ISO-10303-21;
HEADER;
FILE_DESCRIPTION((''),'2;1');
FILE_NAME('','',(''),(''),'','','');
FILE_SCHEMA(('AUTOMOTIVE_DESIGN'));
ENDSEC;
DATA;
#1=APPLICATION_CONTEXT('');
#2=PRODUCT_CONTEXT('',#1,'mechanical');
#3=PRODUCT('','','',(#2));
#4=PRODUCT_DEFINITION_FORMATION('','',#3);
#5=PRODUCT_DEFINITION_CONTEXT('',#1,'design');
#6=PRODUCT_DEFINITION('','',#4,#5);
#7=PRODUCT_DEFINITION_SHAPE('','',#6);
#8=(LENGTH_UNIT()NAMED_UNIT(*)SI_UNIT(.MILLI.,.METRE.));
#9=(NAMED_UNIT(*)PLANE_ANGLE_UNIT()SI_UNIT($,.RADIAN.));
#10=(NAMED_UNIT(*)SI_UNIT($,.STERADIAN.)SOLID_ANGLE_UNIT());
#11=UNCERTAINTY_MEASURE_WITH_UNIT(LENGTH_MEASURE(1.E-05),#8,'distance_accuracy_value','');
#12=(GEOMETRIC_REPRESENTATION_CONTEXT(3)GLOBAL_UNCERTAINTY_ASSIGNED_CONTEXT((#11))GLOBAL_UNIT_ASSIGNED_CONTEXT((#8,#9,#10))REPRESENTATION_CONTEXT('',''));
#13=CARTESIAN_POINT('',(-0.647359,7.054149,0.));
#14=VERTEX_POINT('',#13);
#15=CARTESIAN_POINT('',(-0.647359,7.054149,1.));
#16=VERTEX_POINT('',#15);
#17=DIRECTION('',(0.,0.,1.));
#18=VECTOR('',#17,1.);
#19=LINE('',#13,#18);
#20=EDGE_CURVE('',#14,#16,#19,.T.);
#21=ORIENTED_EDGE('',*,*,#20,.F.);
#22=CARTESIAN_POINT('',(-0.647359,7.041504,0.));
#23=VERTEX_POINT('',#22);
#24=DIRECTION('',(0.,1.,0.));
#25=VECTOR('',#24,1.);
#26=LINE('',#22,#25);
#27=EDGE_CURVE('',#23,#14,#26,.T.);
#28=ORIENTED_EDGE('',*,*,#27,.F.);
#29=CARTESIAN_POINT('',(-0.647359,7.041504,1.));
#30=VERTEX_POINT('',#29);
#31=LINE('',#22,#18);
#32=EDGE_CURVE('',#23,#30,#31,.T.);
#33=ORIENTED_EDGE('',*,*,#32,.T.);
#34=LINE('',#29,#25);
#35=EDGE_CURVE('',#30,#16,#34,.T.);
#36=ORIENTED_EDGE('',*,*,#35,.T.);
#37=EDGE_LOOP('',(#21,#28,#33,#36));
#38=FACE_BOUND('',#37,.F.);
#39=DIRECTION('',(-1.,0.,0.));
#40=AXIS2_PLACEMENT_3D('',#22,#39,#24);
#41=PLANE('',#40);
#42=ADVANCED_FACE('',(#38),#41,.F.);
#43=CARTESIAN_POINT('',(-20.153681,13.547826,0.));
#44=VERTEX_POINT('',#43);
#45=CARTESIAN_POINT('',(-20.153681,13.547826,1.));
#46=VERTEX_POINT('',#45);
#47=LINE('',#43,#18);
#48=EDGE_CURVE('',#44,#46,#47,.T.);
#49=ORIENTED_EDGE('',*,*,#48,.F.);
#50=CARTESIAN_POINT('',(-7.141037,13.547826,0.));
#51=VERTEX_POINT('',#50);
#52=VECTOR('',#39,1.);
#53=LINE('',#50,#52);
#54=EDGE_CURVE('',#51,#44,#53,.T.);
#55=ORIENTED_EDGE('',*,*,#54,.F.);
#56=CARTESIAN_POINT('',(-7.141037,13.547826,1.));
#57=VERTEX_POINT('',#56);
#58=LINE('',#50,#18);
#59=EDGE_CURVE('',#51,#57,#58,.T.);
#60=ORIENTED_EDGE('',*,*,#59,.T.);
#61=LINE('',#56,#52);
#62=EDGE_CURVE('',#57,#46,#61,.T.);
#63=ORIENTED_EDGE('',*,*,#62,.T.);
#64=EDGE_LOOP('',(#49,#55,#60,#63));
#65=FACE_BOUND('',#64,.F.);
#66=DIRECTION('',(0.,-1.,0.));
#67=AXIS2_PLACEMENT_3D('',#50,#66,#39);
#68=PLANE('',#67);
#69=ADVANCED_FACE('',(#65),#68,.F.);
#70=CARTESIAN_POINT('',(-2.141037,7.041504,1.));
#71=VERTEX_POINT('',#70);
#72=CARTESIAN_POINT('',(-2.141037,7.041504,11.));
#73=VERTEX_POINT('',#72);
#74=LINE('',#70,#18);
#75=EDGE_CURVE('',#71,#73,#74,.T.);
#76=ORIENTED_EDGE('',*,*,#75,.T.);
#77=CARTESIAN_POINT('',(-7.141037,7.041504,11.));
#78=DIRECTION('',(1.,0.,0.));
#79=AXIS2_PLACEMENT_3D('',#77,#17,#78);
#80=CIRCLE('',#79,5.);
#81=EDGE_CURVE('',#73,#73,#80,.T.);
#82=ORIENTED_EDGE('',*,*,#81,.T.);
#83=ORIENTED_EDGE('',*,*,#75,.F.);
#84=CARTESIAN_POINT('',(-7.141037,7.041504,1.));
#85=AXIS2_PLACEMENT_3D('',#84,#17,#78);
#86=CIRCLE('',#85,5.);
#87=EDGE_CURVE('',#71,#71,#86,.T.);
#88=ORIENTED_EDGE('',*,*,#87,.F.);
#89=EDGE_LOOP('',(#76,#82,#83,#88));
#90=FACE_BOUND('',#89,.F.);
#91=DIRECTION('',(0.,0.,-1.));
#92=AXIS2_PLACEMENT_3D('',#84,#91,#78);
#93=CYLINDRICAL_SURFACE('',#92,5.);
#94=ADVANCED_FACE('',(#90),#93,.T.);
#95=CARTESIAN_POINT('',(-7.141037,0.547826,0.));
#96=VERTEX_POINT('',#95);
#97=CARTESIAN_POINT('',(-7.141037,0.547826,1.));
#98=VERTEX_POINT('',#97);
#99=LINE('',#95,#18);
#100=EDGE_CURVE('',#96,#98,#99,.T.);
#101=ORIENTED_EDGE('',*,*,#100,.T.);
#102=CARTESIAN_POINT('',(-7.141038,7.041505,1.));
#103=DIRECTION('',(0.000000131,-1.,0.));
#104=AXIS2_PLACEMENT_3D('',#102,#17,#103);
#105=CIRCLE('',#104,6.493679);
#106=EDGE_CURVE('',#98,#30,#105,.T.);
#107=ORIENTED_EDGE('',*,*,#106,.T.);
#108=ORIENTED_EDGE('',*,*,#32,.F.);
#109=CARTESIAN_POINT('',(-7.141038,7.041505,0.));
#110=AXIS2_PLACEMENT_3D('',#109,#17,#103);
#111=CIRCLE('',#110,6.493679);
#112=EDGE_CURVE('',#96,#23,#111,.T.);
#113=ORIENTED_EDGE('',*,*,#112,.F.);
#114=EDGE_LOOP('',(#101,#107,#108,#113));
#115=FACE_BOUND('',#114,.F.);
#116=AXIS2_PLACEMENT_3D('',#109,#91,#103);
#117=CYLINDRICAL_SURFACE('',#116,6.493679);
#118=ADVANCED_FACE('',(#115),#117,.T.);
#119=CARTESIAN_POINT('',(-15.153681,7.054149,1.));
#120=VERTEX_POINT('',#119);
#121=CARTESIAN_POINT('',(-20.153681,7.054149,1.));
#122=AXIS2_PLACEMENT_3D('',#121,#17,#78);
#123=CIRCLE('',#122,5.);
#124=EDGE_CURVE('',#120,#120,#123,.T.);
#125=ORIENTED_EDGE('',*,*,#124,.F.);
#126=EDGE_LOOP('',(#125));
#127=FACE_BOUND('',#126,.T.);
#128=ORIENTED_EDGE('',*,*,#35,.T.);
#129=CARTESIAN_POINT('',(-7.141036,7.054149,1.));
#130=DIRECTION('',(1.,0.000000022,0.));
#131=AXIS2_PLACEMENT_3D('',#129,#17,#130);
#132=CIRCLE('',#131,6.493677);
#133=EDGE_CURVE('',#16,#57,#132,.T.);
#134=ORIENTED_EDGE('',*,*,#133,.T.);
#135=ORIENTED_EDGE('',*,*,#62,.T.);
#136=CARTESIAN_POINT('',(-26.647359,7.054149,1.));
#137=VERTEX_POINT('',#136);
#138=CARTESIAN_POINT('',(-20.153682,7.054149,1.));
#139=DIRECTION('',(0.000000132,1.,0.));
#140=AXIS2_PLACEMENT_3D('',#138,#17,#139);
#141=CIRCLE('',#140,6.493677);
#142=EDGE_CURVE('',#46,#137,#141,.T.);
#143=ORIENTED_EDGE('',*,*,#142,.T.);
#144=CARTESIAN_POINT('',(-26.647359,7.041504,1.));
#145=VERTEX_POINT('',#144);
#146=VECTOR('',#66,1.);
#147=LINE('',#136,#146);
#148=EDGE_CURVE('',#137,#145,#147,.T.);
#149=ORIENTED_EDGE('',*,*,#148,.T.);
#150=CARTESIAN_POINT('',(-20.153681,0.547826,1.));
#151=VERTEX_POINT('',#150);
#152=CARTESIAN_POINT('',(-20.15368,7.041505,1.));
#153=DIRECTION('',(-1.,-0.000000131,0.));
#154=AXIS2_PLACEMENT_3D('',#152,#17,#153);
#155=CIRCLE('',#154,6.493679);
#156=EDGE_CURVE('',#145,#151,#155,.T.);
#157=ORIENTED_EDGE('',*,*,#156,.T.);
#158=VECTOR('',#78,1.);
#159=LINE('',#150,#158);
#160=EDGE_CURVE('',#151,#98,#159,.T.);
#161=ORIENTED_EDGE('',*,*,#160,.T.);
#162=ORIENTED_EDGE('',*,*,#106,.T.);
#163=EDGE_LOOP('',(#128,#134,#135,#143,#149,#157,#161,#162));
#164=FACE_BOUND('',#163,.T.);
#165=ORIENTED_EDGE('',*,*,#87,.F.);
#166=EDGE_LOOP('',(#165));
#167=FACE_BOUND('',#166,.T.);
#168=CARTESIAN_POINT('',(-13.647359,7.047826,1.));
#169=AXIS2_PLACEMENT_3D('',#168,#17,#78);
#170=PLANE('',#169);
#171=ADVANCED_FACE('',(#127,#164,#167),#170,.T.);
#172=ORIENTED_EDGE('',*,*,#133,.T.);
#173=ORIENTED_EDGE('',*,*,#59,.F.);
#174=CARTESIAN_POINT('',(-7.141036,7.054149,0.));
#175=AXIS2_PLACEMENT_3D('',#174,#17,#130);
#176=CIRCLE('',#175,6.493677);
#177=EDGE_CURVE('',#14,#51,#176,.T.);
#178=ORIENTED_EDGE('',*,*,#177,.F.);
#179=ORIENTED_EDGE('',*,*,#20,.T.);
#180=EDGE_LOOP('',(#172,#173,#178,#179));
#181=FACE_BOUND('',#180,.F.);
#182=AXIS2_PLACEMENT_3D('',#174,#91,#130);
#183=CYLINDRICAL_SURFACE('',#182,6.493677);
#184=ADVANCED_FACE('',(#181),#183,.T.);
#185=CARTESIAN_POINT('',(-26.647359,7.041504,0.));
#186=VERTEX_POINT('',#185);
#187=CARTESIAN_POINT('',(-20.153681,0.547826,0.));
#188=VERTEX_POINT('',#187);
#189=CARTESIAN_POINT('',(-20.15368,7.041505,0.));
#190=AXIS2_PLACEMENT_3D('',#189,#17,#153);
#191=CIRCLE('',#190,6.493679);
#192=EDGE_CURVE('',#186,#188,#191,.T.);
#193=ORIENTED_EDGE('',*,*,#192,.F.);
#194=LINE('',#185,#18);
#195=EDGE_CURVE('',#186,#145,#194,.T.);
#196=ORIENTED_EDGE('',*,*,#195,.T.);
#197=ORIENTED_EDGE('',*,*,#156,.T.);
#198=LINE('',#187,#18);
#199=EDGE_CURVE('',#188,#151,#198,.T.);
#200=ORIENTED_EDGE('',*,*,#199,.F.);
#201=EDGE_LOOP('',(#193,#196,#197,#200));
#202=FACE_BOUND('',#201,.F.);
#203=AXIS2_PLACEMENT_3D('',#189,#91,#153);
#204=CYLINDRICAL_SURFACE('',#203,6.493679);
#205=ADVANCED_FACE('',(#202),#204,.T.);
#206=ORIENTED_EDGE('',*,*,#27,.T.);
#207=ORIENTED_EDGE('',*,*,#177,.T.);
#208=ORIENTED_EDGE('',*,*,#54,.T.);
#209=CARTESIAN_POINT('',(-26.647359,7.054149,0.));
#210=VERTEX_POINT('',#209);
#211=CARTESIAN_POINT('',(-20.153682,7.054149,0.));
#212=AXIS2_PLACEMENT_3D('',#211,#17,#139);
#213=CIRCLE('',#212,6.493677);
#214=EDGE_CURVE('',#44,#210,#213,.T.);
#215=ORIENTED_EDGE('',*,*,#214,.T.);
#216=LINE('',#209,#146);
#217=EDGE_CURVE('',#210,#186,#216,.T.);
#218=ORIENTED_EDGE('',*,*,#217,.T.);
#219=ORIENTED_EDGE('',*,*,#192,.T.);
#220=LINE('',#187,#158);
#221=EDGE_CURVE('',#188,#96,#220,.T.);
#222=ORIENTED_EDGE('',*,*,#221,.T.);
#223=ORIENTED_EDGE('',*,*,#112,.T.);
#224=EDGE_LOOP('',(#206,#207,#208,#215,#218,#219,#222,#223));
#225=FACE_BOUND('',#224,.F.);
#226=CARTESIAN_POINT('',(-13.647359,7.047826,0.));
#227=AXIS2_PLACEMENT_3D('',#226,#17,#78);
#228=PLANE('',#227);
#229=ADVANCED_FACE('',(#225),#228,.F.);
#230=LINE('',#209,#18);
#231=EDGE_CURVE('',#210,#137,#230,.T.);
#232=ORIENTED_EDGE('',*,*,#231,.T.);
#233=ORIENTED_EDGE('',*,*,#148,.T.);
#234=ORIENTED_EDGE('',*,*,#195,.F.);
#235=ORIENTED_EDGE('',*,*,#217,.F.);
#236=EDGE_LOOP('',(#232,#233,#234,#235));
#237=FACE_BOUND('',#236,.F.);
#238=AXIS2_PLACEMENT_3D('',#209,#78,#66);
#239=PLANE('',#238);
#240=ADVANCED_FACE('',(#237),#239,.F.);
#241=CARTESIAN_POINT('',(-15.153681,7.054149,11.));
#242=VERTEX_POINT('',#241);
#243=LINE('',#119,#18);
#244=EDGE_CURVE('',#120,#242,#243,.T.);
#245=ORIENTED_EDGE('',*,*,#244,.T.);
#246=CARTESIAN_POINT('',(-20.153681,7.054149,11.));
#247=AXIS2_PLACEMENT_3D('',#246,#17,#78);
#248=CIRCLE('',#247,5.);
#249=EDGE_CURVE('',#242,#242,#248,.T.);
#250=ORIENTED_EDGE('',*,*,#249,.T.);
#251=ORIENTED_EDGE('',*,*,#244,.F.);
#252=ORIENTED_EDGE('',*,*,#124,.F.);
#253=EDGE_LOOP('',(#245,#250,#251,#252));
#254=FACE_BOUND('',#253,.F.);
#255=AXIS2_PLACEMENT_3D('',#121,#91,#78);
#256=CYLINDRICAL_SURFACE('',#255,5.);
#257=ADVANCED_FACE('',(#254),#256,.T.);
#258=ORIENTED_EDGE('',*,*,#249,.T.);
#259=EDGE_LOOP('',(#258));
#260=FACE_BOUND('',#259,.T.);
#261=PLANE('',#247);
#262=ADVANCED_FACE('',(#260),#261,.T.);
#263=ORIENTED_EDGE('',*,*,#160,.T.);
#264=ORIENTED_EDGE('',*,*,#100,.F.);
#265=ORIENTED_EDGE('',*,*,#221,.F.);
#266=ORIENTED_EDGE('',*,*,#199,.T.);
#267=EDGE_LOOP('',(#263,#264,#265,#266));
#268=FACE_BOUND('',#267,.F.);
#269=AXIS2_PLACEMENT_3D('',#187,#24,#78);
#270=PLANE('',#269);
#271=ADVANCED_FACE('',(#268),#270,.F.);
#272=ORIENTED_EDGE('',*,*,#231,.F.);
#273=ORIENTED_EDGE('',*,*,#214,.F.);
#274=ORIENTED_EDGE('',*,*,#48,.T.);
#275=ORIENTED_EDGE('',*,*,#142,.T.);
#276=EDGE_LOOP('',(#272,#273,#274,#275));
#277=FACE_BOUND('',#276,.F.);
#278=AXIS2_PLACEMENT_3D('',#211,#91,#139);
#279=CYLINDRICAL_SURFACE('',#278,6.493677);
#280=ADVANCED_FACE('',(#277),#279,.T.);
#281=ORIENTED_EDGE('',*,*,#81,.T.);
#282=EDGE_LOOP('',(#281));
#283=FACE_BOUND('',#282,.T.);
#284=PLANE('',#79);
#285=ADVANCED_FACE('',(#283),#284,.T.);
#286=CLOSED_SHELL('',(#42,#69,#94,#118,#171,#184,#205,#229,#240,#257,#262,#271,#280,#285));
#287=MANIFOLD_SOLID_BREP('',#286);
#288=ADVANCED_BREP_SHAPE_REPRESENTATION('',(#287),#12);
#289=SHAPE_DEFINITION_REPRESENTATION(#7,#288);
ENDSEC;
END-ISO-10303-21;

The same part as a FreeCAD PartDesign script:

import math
import FreeCAD as App
import Part
import Sketcher
Q = App.Units.Quantity

doc = App.newDocument("Part")
params = doc.addObject("Spreadsheet::Sheet", "Params")
for row, (alias, value) in enumerate([
    ("pad1_length", "1 mm"),
    ("sketch2_diameter", "10 mm"),
    ("pad2_length", "10 mm"),
], start=1):
    params.set(f"A{row}", alias)
    params.set(f"B{row}", "=" + value)
    params.setAlias(f"B{row}", alias)

body = doc.addObject("PartDesign::Body", "Body")

# Sketch on XY plane
sketch1 = body.newObject("Sketcher::SketchObject", "Sketch")
sketch1.AttachmentSupport = (doc.getObject("XY_Plane"), [""])
sketch1.MapMode = "FlatFace"
sketch1.addGeometry([
    Part.LineSegment(App.Vector(-26.647, 7.054, 0), App.Vector(-26.647, 7.042, 0)),  # 0
    Part.ArcOfCircle(Part.Circle(App.Vector(-20.154, 7.042, 0), App.Vector(0, 0, 1), 6.494), math.radians(-180), math.radians(-90)),  # 1
    Part.LineSegment(App.Vector(-20.154, 0.548, 0), App.Vector(-7.141, 0.548, 0)),  # 2
    Part.ArcOfCircle(Part.Circle(App.Vector(-7.141, 7.042, 0), App.Vector(0, 0, 1), 6.494), math.radians(-90), math.radians(0)),  # 3
    Part.LineSegment(App.Vector(-0.647, 7.042, 0), App.Vector(-0.647, 7.054, 0)),  # 4
    Part.ArcOfCircle(Part.Circle(App.Vector(-7.141, 7.054, 0), App.Vector(0, 0, 1), 6.494), math.radians(0), math.radians(90)),  # 5
    Part.LineSegment(App.Vector(-7.141, 13.548, 0), App.Vector(-20.154, 13.548, 0)),  # 6
    Part.ArcOfCircle(Part.Circle(App.Vector(-20.154, 7.054, 0), App.Vector(0, 0, 1), 6.494), math.radians(90), math.radians(180)),  # 7
], False)
sketch1.addConstraint([
    Sketcher.Constraint("Tangent", 0, 2, 1, 1),
    Sketcher.Constraint("Tangent", 1, 2, 2, 1),
    Sketcher.Constraint("Tangent", 2, 2, 3, 1),
    Sketcher.Constraint("Tangent", 3, 2, 4, 1),
    Sketcher.Constraint("Tangent", 4, 2, 5, 1),
    Sketcher.Constraint("Tangent", 5, 2, 6, 1),
    Sketcher.Constraint("Tangent", 6, 2, 7, 1),
    Sketcher.Constraint("Tangent", 7, 2, 0, 1),
    Sketcher.Constraint("Horizontal", 2),
    Sketcher.Constraint("Horizontal", 6),
    Sketcher.Constraint("Equal", 1, 3),
    Sketcher.Constraint("Equal", 3, 5),
    Sketcher.Constraint("Equal", 5, 7),
    Sketcher.Constraint("Horizontal", 3, 3, 0, 2),
    Sketcher.Constraint("Horizontal", 0, 2, 3, 2),
    Sketcher.Constraint("DistanceY", 2, 2, 5, 2, Q("13 mm")),
    Sketcher.Constraint("Radius", 1, Q("6.493679 mm")),
    Sketcher.Constraint("DistanceX", 2, 1, 2, 2, Q("13.012644 mm")),
    Sketcher.Constraint("DistanceX", 1, 3, -1, 1, Q("20.15368 mm")),
    Sketcher.Constraint("DistanceY", -1, 1, 5, 3, Q("7.054149 mm")),
])
pad1 = body.newObject("PartDesign::Pad", "Pad")
pad1.Profile = sketch1
pad1.setExpression("Length", "Params.pad1_length")

# Sketch on XY plane
sketch2 = body.newObject("Sketcher::SketchObject", "Sketch001")
sketch2.AttachmentSupport = (doc.getObject("XY_Plane"), [""])
sketch2.MapMode = "FlatFace"
sketch2.AttachmentOffset = App.Placement(App.Vector(0, 0, 1), App.Rotation())
sketch2.addGeometry([
    Part.Circle(App.Vector(-20, 7, 0), App.Vector(0, 0, 1), 5),
    Part.Circle(App.Vector(-7, 7, 0), App.Vector(0, 0, 1), 5),
], False)
sketch2.addConstraint([
    Sketcher.Constraint("Equal", 0, 1),
    Sketcher.Constraint("Diameter", 0, Q("10 mm")),
    Sketcher.Constraint("DistanceX", 0, 3, -1, 1, Q("20.153681 mm")),
    Sketcher.Constraint("DistanceY", -1, 1, 0, 3, Q("7.054149 mm")),
    Sketcher.Constraint("DistanceX", 1, 3, -1, 1, Q("7.141037 mm")),
    Sketcher.Constraint("DistanceY", -1, 1, 1, 3, Q("7.041504 mm")),
])
sketch2.setExpression("Constraints[1]", "Params.sketch2_diameter")
pad2 = body.newObject("PartDesign::Pad", "Pad001")
pad2.Profile = sketch2
pad2.setExpression("Length", "Params.pad2_length")

doc.recompute()
